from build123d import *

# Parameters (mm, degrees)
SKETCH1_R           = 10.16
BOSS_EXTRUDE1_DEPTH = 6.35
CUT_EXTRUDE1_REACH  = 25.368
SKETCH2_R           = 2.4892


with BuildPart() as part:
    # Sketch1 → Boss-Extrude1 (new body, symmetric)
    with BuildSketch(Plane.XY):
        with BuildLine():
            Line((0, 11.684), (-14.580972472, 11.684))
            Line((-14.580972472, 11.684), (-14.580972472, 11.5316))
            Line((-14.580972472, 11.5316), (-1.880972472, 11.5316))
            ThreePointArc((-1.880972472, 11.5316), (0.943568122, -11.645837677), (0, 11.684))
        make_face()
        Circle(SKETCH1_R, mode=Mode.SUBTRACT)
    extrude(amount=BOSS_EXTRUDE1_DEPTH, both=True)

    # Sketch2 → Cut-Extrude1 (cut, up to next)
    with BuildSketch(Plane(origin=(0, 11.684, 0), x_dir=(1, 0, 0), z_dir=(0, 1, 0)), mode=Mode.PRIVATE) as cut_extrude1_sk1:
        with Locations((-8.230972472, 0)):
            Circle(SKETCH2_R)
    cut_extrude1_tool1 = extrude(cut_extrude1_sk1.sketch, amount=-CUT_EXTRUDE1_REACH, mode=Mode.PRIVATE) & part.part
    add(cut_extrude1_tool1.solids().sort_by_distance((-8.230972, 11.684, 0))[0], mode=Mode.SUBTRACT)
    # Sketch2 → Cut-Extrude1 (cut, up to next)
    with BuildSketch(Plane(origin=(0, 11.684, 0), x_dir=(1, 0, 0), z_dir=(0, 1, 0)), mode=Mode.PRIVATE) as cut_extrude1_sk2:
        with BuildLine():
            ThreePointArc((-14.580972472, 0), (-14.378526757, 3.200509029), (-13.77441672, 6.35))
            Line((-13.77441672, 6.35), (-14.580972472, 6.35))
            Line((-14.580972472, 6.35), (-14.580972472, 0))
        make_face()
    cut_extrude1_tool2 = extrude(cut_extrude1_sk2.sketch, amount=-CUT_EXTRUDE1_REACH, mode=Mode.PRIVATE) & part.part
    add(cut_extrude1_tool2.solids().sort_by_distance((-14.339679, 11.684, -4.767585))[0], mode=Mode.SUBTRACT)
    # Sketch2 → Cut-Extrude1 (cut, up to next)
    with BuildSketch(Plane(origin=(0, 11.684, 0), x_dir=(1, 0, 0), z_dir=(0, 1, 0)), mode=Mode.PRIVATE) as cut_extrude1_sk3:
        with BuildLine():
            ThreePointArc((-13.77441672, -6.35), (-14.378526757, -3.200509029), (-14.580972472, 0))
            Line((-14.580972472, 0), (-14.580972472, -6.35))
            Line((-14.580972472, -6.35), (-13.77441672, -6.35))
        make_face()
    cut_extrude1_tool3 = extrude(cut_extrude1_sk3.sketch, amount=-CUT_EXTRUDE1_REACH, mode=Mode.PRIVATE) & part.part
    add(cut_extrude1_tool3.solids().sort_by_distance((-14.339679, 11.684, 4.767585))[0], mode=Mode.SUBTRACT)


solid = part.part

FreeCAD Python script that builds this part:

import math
import FreeCAD as App
import Part
import Sketcher

V = App.Vector
Q = App.Units.Quantity

doc = App.newDocument("Part")
body = doc.addObject("PartDesign::Body", "Body")

sketch1 = body.newObject("Sketcher::SketchObject", "Sketch")
sketch1.AttachmentSupport = (doc.getObject("XY_Plane"), [""])
sketch1.MapMode = "FlatFace"
sketch1.addGeometry([
    Part.LineSegment(V(0, 11.684, 0), V(-14.580972, 11.684, 0)),
    Part.LineSegment(V(-14.580972, 11.684, 0), V(-14.580972, 11.5316, 0)),
    Part.LineSegment(V(-14.580972, 11.5316, 0), V(-1.880972, 11.5316, 0)),
    Part.ArcOfCircle(Part.Circle(V(0, 0, 0), V(0, 0, 1), 11.684), math.radians(99.264192), math.radians(450)),
    Part.Circle(V(0, 0, 0), V(0, 0, 1), 10.16),
], False)
sketch1.addConstraint([
    Sketcher.Constraint("Coincident", 0, 2, 1, 1),
    Sketcher.Constraint("Coincident", 1, 2, 2, 1),
    Sketcher.Constraint("Coincident", 2, 2, 3, 1),
    Sketcher.Constraint("Tangent", 3, 2, 0, 1),
    Sketcher.Constraint("Horizontal", 0),
    Sketcher.Constraint("Vertical", 1),
    Sketcher.Constraint("Horizontal", 2),
    Sketcher.Constraint("Coincident", 3, 3, -1, 1),
    Sketcher.Constraint("Coincident", 4, 3, -1, 1),
    Sketcher.Constraint("Diameter", 4, Q("0.8 in")),
    Sketcher.Constraint("Radius", 3, Q("0.46 in")),
    Sketcher.Constraint("DistanceX", 2, 1, 2, 2, Q("0.5 in")),
    Sketcher.Constraint("DistanceY", 1, 2, 1, 1, Q("0.006 in")),
])
pad1 = body.newObject("PartDesign::Pad", "Pad")
pad1.Profile = sketch1
pad1.Length = Q("0.5 in")
pad1.Midplane = True

sketch2 = body.newObject("Sketcher::SketchObject", "Sketch001")
sketch2.AttachmentSupport = (doc.getObject("XZ_Plane"), [""])
sketch2.MapMode = "FlatFace"
sketch2.AttachmentOffset = App.Placement(V(0, 0, -0.46 * 25.4), App.Rotation())
sketch2.addGeometry(Part.Circle(V(-8.230972, 0, 0), V(0, 0, 1), 2.4892), False)
sketch2.addConstraint([
    Sketcher.Constraint("PointOnObject", 0, 3, -1),
    Sketcher.Constraint("Diameter", 0, Q("0.196 in")),
    Sketcher.Constraint("DistanceX", 0, 3, -1, 1, 8.230972),
])
pocket1 = body.newObject("PartDesign::Pocket", "Pocket")
pocket1.Profile = sketch2
pocket1.Type = "UpToFirst"
pocket1.Reversed = True

sketch3 = body.newObject("Sketcher::SketchObject", "Sketch002")
sketch3.AttachmentSupport = (doc.getObject("XZ_Plane"), [""])
sketch3.MapMode = "FlatFace"
sketch3.AttachmentOffset = App.Placement(V(0, 0, -0.46 * 25.4), App.Rotation())
sketch3.addGeometry([
    Part.ArcOfCircle(Part.Circle(V(10.819028, 0, 0), V(0, 0, 1), 25.4), math.radians(-180), math.radians(-165.522488)),
    Part.LineSegment(V(-13.774417, -6.35, 0), V(-14.580972, -6.35, 0)),
    Part.LineSegment(V(-14.580972, -6.35, 0), V(-14.580972, 0, 0)),
], False)
sketch3.addConstraint([
    Sketcher.Constraint("Coincident", 0, 2, 1, 1),
    Sketcher.Constraint("Coincident", 1, 2, 2, 1),
    Sketcher.Constraint("Tangent", 2, 2, 0, 1),
    Sketcher.Constraint("Horizontal", 1),
    Sketcher.Constraint("Vertical", 2),
    Sketcher.Constraint("PointOnObject", 0, 3, -1),
    Sketcher.Constraint("Radius", 0, Q("1 in")),
    Sketcher.Constraint("DistanceY", 2, 1, 2, 2, Q("0.25 in")),
    Sketcher.Constraint("DistanceX", 0, 2, -1, 1, Q("0.5422999 in")),
])
pocket2 = body.newObject("PartDesign::Pocket", "Pocket001")
pocket2.Profile = sketch3
pocket2.Type = "UpToFirst"
pocket2.Reversed = True

sketch4 = body.newObject("Sketcher::SketchObject", "Sketch003")
sketch4.AttachmentSupport = (doc.getObject("XZ_Plane"), [""])
sketch4.MapMode = "FlatFace"
sketch4.AttachmentOffset = App.Placement(V(0, 0, -0.46 * 25.4), App.Rotation())
sketch4.addGeometry([
    Part.ArcOfCircle(Part.Circle(V(10.819028, 0, 0), V(0, 0, 1), 25.4), math.radians(165.522488), math.radians(180)),
    Part.LineSegment(V(-14.580972, 0, 0), V(-14.580972, 6.35, 0)),
    Part.LineSegment(V(-14.580972, 6.35, 0), V(-13.774417, 6.35, 0)),
], False)
sketch4.addConstraint([
    Sketcher.Constraint("Tangent", 0, 2, 1, 1),
    Sketcher.Constraint("Coincident", 1, 2, 2, 1),
    Sketcher.Constraint("Coincident", 2, 2, 0, 1),
    Sketcher.Constraint("Vertical", 1),
    Sketcher.Constraint("Horizontal", 2),
    Sketcher.Constraint("PointOnObject", 0, 3, -1),
    Sketcher.Constraint("Radius", 0, Q("1 in")),
    Sketcher.Constraint("DistanceY", 1, 1, 1, 2, Q("0.25 in")),
    Sketcher.Constraint("DistanceX", 2, 2, -1, 1, Q("0.5422999 in")),
])
pocket3 = body.newObject("PartDesign::Pocket", "Pocket002")
pocket3.Profile = sketch4
pocket3.Type = "UpToFirst"
pocket3.Reversed = True

doc.recompute()
